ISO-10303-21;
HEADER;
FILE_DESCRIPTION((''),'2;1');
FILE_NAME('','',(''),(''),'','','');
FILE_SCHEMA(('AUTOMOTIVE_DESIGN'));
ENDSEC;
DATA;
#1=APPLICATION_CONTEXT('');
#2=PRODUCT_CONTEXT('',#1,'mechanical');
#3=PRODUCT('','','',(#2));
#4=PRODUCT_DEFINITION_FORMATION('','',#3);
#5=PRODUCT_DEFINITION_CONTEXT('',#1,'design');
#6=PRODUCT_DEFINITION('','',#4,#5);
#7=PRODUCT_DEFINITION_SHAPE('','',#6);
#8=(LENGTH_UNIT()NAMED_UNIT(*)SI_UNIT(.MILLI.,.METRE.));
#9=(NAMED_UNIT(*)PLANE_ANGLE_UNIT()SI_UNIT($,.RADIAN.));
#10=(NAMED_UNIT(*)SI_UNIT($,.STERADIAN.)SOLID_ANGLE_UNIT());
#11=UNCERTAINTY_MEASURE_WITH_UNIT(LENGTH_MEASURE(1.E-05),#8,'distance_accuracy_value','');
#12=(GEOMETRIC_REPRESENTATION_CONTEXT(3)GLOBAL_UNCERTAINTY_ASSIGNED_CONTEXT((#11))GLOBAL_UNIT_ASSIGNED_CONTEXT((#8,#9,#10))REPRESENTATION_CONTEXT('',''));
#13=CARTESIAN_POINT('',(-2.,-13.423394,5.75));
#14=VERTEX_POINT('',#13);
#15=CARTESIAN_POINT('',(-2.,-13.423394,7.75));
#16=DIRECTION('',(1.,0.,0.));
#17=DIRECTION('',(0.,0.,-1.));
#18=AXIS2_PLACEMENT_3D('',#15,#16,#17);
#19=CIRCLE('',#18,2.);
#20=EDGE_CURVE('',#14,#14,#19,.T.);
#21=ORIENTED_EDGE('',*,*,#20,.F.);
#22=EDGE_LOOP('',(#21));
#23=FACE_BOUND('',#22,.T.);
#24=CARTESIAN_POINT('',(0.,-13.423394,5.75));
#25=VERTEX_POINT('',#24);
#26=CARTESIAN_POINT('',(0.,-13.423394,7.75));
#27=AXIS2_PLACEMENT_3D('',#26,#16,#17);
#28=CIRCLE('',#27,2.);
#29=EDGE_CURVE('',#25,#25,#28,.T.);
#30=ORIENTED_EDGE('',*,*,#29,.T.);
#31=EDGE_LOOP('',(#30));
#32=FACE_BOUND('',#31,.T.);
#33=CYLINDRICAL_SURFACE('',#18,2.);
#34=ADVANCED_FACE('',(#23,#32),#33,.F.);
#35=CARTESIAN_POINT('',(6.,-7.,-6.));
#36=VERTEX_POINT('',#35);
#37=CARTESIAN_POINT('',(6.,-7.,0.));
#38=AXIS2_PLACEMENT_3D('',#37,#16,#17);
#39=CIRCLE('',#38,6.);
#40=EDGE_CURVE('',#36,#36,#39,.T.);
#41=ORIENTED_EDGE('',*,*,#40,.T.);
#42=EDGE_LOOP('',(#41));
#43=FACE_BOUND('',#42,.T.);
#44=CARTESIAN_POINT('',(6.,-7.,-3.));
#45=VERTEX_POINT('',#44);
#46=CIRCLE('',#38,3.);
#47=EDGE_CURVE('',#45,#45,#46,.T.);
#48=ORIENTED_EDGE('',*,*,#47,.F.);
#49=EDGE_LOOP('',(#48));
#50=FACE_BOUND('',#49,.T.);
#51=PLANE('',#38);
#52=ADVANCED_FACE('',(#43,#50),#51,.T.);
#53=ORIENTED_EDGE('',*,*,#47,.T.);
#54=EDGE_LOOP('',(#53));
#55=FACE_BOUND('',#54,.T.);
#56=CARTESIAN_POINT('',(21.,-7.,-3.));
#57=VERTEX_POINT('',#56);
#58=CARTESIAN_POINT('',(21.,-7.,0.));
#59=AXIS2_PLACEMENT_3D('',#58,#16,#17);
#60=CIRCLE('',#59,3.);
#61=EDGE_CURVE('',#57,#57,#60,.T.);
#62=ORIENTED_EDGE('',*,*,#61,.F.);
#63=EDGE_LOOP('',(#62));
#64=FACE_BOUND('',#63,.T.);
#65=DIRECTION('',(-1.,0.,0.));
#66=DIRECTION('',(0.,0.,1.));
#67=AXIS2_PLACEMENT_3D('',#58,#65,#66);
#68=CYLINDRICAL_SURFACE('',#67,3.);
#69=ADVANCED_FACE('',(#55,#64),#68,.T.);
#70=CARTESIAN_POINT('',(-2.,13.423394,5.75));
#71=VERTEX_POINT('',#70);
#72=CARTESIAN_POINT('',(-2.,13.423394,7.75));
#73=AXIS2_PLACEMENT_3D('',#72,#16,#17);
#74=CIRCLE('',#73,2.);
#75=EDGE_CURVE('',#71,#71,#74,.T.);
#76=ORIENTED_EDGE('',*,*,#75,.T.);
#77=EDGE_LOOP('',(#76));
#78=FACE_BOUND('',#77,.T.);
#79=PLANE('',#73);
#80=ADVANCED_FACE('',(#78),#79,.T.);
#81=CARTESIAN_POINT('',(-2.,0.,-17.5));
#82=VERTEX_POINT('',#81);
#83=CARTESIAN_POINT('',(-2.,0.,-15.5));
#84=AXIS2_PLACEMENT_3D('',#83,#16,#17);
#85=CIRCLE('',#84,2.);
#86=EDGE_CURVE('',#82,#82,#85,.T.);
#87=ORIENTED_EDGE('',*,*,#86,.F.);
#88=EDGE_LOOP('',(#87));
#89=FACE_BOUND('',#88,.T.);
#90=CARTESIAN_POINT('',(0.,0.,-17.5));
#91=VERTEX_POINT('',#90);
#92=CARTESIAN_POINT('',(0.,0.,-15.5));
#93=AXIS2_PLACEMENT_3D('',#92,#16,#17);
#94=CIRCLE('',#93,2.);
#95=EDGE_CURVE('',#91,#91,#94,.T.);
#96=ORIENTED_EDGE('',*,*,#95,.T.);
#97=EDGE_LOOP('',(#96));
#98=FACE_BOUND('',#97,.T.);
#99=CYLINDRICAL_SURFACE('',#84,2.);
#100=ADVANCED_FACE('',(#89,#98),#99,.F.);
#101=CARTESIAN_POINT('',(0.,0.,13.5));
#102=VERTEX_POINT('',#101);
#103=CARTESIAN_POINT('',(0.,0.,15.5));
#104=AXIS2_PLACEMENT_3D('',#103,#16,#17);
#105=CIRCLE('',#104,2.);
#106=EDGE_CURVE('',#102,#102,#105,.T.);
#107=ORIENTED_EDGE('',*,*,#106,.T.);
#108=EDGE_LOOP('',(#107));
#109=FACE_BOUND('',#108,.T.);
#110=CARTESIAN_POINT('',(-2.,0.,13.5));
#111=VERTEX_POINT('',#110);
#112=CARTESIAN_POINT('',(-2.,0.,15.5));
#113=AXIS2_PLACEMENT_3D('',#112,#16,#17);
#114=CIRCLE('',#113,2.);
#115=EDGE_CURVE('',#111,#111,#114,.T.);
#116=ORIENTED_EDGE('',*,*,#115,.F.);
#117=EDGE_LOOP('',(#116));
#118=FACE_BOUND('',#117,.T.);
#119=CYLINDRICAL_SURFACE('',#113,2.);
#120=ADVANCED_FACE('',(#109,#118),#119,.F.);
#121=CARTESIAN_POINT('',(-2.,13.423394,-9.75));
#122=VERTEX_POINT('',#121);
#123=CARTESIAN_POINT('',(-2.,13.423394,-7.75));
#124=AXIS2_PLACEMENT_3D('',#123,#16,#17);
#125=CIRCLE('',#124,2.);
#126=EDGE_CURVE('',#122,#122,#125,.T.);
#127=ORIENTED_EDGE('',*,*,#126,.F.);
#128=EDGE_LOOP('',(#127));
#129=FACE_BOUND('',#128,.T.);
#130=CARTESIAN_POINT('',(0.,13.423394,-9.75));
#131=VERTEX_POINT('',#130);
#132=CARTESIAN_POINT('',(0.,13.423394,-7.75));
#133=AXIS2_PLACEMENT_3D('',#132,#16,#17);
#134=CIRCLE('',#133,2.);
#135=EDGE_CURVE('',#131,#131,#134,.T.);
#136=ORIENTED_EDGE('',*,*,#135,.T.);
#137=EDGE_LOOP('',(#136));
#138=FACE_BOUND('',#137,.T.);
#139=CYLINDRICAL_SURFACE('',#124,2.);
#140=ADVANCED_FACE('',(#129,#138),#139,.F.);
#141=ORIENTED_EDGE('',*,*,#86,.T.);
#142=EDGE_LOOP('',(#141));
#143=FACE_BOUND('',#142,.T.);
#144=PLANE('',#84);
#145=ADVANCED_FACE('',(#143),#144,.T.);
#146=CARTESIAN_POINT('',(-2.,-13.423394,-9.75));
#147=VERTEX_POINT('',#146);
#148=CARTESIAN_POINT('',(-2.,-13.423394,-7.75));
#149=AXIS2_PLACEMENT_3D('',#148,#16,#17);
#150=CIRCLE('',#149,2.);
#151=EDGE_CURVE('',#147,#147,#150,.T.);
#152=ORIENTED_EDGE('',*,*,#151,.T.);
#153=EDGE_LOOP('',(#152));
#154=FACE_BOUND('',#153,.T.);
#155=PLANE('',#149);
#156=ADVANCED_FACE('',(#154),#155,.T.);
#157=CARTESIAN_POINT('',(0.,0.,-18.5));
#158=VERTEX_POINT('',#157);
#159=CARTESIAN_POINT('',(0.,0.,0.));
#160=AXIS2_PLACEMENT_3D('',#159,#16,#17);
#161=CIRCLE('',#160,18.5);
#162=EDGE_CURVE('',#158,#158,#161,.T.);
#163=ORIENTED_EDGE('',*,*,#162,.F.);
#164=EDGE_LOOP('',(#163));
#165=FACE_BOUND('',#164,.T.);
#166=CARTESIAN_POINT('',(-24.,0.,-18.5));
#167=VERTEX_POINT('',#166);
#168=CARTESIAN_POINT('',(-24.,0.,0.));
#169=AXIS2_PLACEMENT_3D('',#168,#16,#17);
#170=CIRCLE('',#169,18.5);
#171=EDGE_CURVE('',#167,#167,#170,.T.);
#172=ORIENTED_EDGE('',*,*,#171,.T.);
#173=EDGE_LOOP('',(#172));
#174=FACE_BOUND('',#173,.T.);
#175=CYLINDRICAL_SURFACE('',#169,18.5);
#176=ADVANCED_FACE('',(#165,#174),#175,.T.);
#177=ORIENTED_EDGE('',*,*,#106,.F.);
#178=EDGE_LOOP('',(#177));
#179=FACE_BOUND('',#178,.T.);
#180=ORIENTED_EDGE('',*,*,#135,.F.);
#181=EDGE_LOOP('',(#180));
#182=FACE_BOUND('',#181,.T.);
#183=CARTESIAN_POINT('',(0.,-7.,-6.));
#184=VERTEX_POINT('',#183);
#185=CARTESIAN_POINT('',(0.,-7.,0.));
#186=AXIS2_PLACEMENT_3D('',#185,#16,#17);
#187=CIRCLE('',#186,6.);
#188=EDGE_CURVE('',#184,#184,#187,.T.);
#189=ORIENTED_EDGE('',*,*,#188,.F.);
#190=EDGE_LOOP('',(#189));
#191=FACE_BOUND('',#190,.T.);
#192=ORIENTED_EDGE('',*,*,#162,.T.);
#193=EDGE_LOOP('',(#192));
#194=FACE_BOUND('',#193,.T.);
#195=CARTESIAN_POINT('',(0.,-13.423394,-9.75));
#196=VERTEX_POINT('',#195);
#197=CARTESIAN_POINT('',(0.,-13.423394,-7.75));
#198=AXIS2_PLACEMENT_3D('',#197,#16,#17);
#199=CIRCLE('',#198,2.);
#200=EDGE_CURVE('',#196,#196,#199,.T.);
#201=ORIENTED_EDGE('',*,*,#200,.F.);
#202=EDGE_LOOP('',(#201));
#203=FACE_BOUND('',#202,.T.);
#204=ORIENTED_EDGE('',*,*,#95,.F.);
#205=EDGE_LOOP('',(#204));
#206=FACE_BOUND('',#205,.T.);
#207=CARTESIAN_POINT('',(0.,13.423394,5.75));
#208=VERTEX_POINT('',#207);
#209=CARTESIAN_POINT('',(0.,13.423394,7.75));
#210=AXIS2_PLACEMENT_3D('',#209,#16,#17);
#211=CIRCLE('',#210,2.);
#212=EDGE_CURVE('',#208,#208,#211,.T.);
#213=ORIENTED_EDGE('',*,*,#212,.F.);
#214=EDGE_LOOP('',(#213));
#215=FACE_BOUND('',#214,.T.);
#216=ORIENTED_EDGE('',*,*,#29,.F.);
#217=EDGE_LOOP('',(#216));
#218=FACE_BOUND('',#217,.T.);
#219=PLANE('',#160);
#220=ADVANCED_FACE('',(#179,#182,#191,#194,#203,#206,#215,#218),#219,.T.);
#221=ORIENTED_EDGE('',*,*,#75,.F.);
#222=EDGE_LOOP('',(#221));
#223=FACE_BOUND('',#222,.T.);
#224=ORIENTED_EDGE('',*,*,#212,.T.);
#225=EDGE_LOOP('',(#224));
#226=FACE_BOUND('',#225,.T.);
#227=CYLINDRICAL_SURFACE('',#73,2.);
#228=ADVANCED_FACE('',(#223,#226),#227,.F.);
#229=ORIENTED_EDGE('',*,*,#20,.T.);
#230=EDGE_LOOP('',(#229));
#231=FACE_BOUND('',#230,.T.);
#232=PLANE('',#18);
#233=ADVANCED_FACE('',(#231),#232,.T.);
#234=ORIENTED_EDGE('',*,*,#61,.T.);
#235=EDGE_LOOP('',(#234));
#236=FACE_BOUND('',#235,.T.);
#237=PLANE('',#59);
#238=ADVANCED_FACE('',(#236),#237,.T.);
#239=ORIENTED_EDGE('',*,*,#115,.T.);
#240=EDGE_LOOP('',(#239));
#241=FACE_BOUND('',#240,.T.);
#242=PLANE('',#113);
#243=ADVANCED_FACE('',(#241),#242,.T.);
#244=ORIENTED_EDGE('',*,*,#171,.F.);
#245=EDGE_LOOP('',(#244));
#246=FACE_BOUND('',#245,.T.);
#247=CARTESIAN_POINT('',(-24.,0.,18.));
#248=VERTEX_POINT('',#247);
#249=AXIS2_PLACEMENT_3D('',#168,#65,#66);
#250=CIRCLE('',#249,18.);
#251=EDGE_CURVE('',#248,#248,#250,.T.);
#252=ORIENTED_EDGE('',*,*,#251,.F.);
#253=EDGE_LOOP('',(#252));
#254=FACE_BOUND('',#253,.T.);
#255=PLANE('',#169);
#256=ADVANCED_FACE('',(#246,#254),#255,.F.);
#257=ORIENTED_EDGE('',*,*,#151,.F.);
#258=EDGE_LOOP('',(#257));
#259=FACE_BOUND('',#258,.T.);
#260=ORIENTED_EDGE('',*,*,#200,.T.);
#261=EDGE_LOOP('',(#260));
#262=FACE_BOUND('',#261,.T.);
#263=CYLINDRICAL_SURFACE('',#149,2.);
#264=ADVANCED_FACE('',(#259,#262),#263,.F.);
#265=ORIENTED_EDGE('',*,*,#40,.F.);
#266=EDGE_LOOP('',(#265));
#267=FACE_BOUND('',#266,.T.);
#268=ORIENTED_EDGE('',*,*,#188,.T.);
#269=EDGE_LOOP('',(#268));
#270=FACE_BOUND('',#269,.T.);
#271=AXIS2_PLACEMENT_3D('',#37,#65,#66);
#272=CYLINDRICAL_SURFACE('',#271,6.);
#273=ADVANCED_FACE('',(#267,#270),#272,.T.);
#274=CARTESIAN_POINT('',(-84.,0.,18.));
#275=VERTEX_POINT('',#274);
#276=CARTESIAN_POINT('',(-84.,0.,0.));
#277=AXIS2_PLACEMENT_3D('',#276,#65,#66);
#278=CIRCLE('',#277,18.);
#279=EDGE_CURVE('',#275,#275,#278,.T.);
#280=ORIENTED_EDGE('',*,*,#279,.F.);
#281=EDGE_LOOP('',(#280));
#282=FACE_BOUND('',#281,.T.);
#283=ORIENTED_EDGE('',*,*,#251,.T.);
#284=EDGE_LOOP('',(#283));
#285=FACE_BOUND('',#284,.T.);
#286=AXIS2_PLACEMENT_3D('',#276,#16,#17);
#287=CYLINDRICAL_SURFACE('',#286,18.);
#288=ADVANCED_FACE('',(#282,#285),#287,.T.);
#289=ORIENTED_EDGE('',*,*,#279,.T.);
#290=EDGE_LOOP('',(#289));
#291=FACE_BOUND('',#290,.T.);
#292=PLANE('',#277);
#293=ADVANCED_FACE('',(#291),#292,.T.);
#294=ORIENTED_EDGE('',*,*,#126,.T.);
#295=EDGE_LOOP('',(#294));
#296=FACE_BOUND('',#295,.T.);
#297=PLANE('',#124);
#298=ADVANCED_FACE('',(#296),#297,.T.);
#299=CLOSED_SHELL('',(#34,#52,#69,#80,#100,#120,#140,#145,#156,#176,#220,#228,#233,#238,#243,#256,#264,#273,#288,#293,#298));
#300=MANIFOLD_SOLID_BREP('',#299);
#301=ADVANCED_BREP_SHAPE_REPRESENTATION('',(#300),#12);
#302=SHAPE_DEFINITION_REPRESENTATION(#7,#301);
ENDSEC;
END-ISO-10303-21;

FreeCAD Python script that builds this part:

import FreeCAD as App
import Part
import Sketcher
from FreeCAD import Vector

doc = App.newDocument("Part")
params = doc.addObject("Spreadsheet::Sheet", "Params")
for row, (alias, value) in enumerate([
    ("sketch1_diameter", "37 mm"),
    ("pad1_length", "24 mm"),
    ("sketch2_diameter", "36 mm"),
    ("pad2_length", "60 mm"),
    ("sketch3_diameter", "12 mm"),
    ("pad3_length", "6 mm"),
    ("sketch4_diameter", "6 mm"),
    ("pad4_length", "15 mm"),
    ("sketch5_diameter", "4 mm"),
    ("pocket1_length", "2 mm"),
], start=1):
    params.set(f"A{row}", alias)
    params.set(f"B{row}", "=" + value)
    params.setAlias(f"B{row}", alias)

body = doc.addObject("PartDesign::Body", "Body")

sketch1 = body.newObject("Sketcher::SketchObject", "Sketch")
sketch1.AttachmentSupport = (doc.getObject("YZ_Plane"), [""])
sketch1.MapMode = "FlatFace"
sketch1.addGeometry(Part.Circle(Vector(0, 0, 0), Vector(0, 0, 1), 18), False)
sketch1.addConstraint(Sketcher.Constraint("Coincident", 0, 3, -1, 1))
sketch1.addConstraint(Sketcher.Constraint("Diameter", 0, 37.0))
sketch1.setExpression("Constraints[1]", "Params.sketch1_diameter")
pad1 = body.newObject("PartDesign::Pad", "Pad")
pad1.Profile = sketch1
pad1.setExpression("Length", "Params.pad1_length")
pad1.Reversed = True

sketch2 = body.newObject("Sketcher::SketchObject", "Sketch001")
sketch2.AttachmentSupport = (doc.getObject("YZ_Plane"), [""])
sketch2.MapMode = "FlatFace"
sketch2.AttachmentOffset = App.Placement(Vector(0, 0, -24), App.Rotation())
sketch2.addGeometry(Part.Circle(Vector(0, 0, 0), Vector(0, 0, 1), 18), False)
sketch2.addConstraint(Sketcher.Constraint("Coincident", 0, 3, -1, 1))
sketch2.addConstraint(Sketcher.Constraint("Diameter", 0, 36.0))
sketch2.setExpression("Constraints[1]", "Params.sketch2_diameter")
pad2 = body.newObject("PartDesign::Pad", "Pad001")
pad2.Profile = sketch2
pad2.setExpression("Length", "Params.pad2_length")
pad2.Reversed = True

sketch3 = body.newObject("Sketcher::SketchObject", "Sketch002")
sketch3.AttachmentSupport = (doc.getObject("YZ_Plane"), [""])
sketch3.MapMode = "FlatFace"
sketch3.addGeometry(Part.Circle(Vector(-7, 0, 0), Vector(0, 0, 1), 6), False)
sketch3.addConstraint(Sketcher.Constraint("PointOnObject", 0, 3, -1))
sketch3.addConstraint(Sketcher.Constraint("Diameter", 0, 12.0))
sketch3.addConstraint(Sketcher.Constraint("DistanceX", 0, 3, -1, 1, 7.0))
sketch3.setExpression("Constraints[1]", "Params.sketch3_diameter")
pad3 = body.newObject("PartDesign::Pad", "Pad002")
pad3.Profile = sketch3
pad3.setExpression("Length", "Params.pad3_length")

sketch4 = body.newObject("Sketcher::SketchObject", "Sketch003")
sketch4.AttachmentSupport = (doc.getObject("YZ_Plane"), [""])
sketch4.MapMode = "FlatFace"
sketch4.AttachmentOffset = App.Placement(Vector(0, 0, 6), App.Rotation())
sketch4.addGeometry(Part.Circle(Vector(-7, 0, 0), Vector(0, 0, 1), 3), False)
sketch4.addConstraint(Sketcher.Constraint("PointOnObject", 0, 3, -1))
sketch4.addConstraint(Sketcher.Constraint("Diameter", 0, 6.0))
sketch4.addConstraint(Sketcher.Constraint("DistanceX", 0, 3, -1, 1, 7.0))
sketch4.setExpression("Constraints[1]", "Params.sketch4_diameter")
pad4 = body.newObject("PartDesign::Pad", "Pad003")
pad4.Profile = sketch4
pad4.setExpression("Length", "Params.pad4_length")

sketch5 = body.newObject("Sketcher::SketchObject", "Sketch004")
sketch5.AttachmentSupport = (doc.getObject("YZ_Plane"), [""])
sketch5.MapMode = "FlatFace"
sketch5.addGeometry(Part.Circle(Vector(0, 15.5, 0), Vector(0, 0, 1), 2), False)
sketch5.addGeometry(Part.Circle(Vector(13.4, 7.8, 0), Vector(0, 0, 1), 2), False)
sketch5.addGeometry(Part.Circle(Vector(13.4, -7.8, 0), Vector(0, 0, 1), 2), False)
sketch5.addGeometry(Part.Circle(Vector(0, -15.5, 0), Vector(0, 0, 1), 2), False)
sketch5.addGeometry(Part.Circle(Vector(-13.4, -7.8, 0), Vector(0, 0, 1), 2), False)
sketch5.addGeometry(Part.Circle(Vector(-13.4, 7.8, 0), Vector(0, 0, 1), 2), False)
sketch5.addConstraint(Sketcher.Constraint("Equal", 0, 1))
sketch5.addConstraint(Sketcher.Constraint("Equal", 1, 2))
sketch5.addConstraint(Sketcher.Constraint("Equal", 2, 3))
sketch5.addConstraint(Sketcher.Constraint("Equal", 3, 4))
sketch5.addConstraint(Sketcher.Constraint("Equal", 4, 5))
sketch5.addConstraint(Sketcher.Constraint("Symmetric", 0, 3, 3, 3, -1, 1))
sketch5.addConstraint(Sketcher.Constraint("Symmetric", 1, 3, 4, 3, -1, 1))
sketch5.addConstraint(Sketcher.Constraint("Symmetric", 2, 3, 5, 3, -1, 1))
sketch5.addConstraint(Sketcher.Constraint("Symmetric", 2, 3, 4, 3, -2))
sketch5.addConstraint(Sketcher.Constraint("PointOnObject", 0, 3, -2))
sketch5.addConstraint(Sketcher.Constraint("Diameter", 0, 4.0))
sketch5.addConstraint(Sketcher.Constraint("DistanceY", 3, 3, 0, 3, 31.0))
sketch5.addConstraint(Sketcher.Constraint("DistanceY", 2, 3, 1, 3, 15.5))
sketch5.addConstraint(Sketcher.Constraint("DistanceX", -1, 1, 1, 3, 13.423394))
sketch5.setExpression("Constraints[10]", "Params.sketch5_diameter")
pocket1 = body.newObject("PartDesign::Pocket", "Pocket")
pocket1.Profile = sketch5
pocket1.setExpression("Length", "Params.pocket1_length")

doc.recompute()
